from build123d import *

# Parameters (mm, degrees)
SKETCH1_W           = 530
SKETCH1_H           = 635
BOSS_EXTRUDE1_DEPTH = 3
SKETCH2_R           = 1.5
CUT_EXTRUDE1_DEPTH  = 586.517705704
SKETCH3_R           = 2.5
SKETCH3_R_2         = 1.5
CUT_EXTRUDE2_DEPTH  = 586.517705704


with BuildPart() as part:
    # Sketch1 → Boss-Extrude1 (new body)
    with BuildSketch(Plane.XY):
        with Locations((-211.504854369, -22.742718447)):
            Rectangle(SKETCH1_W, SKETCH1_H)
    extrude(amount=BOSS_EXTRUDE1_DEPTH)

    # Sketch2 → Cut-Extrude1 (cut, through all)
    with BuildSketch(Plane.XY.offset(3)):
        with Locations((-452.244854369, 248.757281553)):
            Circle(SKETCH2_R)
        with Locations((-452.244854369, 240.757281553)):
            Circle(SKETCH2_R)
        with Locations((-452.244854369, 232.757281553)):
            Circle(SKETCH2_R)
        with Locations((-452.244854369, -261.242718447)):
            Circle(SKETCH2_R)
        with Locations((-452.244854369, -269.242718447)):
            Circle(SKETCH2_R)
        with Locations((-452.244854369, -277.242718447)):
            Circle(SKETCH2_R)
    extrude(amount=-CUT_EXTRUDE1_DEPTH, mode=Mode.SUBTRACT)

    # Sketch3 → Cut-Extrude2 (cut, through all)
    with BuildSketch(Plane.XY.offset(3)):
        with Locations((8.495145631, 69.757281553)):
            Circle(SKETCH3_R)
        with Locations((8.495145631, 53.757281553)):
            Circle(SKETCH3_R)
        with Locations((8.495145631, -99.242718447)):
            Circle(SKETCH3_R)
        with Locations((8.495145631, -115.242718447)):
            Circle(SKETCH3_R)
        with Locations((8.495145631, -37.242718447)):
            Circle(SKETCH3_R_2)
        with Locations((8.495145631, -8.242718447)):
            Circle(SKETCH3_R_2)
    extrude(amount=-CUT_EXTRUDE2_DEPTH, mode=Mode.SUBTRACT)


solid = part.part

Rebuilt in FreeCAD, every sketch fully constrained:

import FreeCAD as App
import Part
import Sketcher
from FreeCAD import Vector
Q = App.Units.Quantity

doc = App.newDocument("Part")
body = doc.addObject("PartDesign::Body", "Body")

sketch1 = doc.addObject("Sketcher::SketchObject", "Sketch")
body.addObject(sketch1)
sketch1.AttachmentSupport = (doc.XY_Plane, [""])
sketch1.MapMode = "FlatFace"
sketch1.addGeometry([
    Part.LineSegment(Vector(-477, 295, 0), Vector(-477, -340, 0)),
    Part.LineSegment(Vector(-477, -340, 0), Vector(53, -340, 0)),
    Part.LineSegment(Vector(53, -340, 0), Vector(53, 295, 0)),
    Part.LineSegment(Vector(53, 295, 0), Vector(-477, 295, 0)),
], False)
sketch1.addConstraint([
    Sketcher.Constraint("Coincident", 0, 2, 1, 1),
    Sketcher.Constraint("Coincident", 1, 2, 2, 1),
    Sketcher.Constraint("Coincident", 2, 2, 3, 1),
    Sketcher.Constraint("Coincident", 3, 2, 0, 1),
    Sketcher.Constraint("Vertical", 0),
    Sketcher.Constraint("Horizontal", 1),
    Sketcher.Constraint("Vertical", 2),
    Sketcher.Constraint("Horizontal", 3),
    Sketcher.Constraint("DistanceX", 1, 1, 1, 2, Q("530 mm")),
    Sketcher.Constraint("DistanceY", 0, 2, 0, 1, Q("635 mm")),
    Sketcher.Constraint("DistanceY", 0, 2, -1, 1, Q("340.242718 mm")),
    Sketcher.Constraint("DistanceX", 0, 2, -1, 1, Q("476.504854 mm")),
])
pad1 = doc.addObject("PartDesign::Pad", "Pad")
body.addObject(pad1)
pad1.Profile = sketch1
pad1.Length = 3

sketch2 = doc.addObject("Sketcher::SketchObject", "Sketch001")
body.addObject(sketch2)
sketch2.AttachmentSupport = (doc.XY_Plane, [""])
sketch2.MapMode = "FlatFace"
sketch2.AttachmentOffset = App.Placement(Vector(0, 0, 3), App.Rotation())
sketch2.addGeometry([
    Part.Circle(Vector(-452.2, 248.8, 0), Vector(0, 0, 1), 1.5),
    Part.Circle(Vector(-452.2, 240.8, 0), Vector(0, 0, 1), 1.5),
    Part.Circle(Vector(-452.2, 232.8, 0), Vector(0, 0, 1), 1.5),
    Part.Circle(Vector(-452.2, -261.2, 0), Vector(0, 0, 1), 1.5),
    Part.Circle(Vector(-452.2, -269.2, 0), Vector(0, 0, 1), 1.5),
    Part.Circle(Vector(-452.2, -277.2, 0), Vector(0, 0, 1), 1.5),
], False)
sketch2.addConstraint([
    Sketcher.Constraint("Equal", 0, 1),
    Sketcher.Constraint("Equal", 1, 2),
    Sketcher.Constraint("Equal", 2, 3),
    Sketcher.Constraint("Equal", 3, 4),
    Sketcher.Constraint("Equal", 4, 5),
    Sketcher.Constraint("Vertical", 0, 3, 1, 3),
    Sketcher.Constraint("Vertical", 1, 3, 2, 3),
    Sketcher.Constraint("Vertical", 2, 3, 3, 3),
    Sketcher.Constraint("Vertical", 3, 3, 4, 3),
    Sketcher.Constraint("Vertical", 4, 3, 5, 3),
    Sketcher.Constraint("Diameter", 0, Q("3 mm")),
    Sketcher.Constraint("DistanceY", 1, 3, 0, 3, Q("8 mm")),
    Sketcher.Constraint("DistanceY", 2, 3, 1, 3, Q("8 mm")),
    Sketcher.Constraint("DistanceY", 3, 3, 2, 3, Q("494 mm")),
    Sketcher.Constraint("DistanceY", 4, 3, 3, 3, Q("8 mm")),
    Sketcher.Constraint("DistanceY", 5, 3, 4, 3, Q("8 mm")),
    Sketcher.Constraint("DistanceY", -1, 1, 0, 3, Q("248.757282 mm")),
    Sketcher.Constraint("DistanceX", 0, 3, -1, 1, Q("452.244854 mm")),
])
pocket1 = doc.addObject("PartDesign::Pocket", "Pocket")
body.addObject(pocket1)
pocket1.Profile = sketch2
pocket1.Type = "ThroughAll"

sketch3 = doc.addObject("Sketcher::SketchObject", "Sketch002")
body.addObject(sketch3)
sketch3.AttachmentSupport = (doc.XY_Plane, [""])
sketch3.MapMode = "FlatFace"
sketch3.AttachmentOffset = App.Placement(Vector(0, 0, 3), App.Rotation())
sketch3.addGeometry([
    Part.Circle(Vector(8.5, 69.8, 0), Vector(0, 0, 1), 2.5),
    Part.Circle(Vector(8.5, 53.8, 0), Vector(0, 0, 1), 2.5),
    Part.Circle(Vector(8.5, -99.2, 0), Vector(0, 0, 1), 2.5),
    Part.Circle(Vector(8.5, -115.2, 0), Vector(0, 0, 1), 2.5),
    Part.Circle(Vector(8.5, -37.2, 0), Vector(0, 0, 1), 1.5),
    Part.Circle(Vector(8.5, -8.2, 0), Vector(0, 0, 1), 1.5),
], False)
sketch3.addConstraint([
    Sketcher.Constraint("Equal", 0, 1),
    Sketcher.Constraint("Equal", 1, 2),
    Sketcher.Constraint("Equal", 2, 3),
    Sketcher.Constraint("Equal", 4, 5),
    Sketcher.Constraint("Vertical", 0, 3, 1, 3),
    Sketcher.Constraint("Vertical", 1, 3, 2, 3),
    Sketcher.Constraint("Vertical", 2, 3, 3, 3),
    Sketcher.Constraint("Vertical", 3, 3, 4, 3),
    Sketcher.Constraint("Vertical", 4, 3, 5, 3),
    Sketcher.Constraint("Diameter", 0, Q("5 mm")),
    Sketcher.Constraint("Diameter", 4, Q("3 mm")),
    Sketcher.Constraint("DistanceY", 1, 3, 0, 3, Q("16 mm")),
    Sketcher.Constraint("DistanceY", 2, 3, 1, 3, Q("153 mm")),
    Sketcher.Constraint("DistanceY", 3, 3, 2, 3, Q("16 mm")),
    Sketcher.Constraint("DistanceY", 2, 3, 4, 3, Q("62 mm")),
    Sketcher.Constraint("DistanceY", 4, 3, 5, 3, Q("29 mm")),
    Sketcher.Constraint("DistanceY", -1, 1, 0, 3, Q("69.757282 mm")),
    Sketcher.Constraint("DistanceX", -1, 1, 0, 3, Q("8.495146 mm")),
])
pocket2 = doc.addObject("PartDesign::Pocket", "Pocket001")
body.addObject(pocket2)
pocket2.Profile = sketch3
pocket2.Type = "ThroughAll"

doc.recompute()
